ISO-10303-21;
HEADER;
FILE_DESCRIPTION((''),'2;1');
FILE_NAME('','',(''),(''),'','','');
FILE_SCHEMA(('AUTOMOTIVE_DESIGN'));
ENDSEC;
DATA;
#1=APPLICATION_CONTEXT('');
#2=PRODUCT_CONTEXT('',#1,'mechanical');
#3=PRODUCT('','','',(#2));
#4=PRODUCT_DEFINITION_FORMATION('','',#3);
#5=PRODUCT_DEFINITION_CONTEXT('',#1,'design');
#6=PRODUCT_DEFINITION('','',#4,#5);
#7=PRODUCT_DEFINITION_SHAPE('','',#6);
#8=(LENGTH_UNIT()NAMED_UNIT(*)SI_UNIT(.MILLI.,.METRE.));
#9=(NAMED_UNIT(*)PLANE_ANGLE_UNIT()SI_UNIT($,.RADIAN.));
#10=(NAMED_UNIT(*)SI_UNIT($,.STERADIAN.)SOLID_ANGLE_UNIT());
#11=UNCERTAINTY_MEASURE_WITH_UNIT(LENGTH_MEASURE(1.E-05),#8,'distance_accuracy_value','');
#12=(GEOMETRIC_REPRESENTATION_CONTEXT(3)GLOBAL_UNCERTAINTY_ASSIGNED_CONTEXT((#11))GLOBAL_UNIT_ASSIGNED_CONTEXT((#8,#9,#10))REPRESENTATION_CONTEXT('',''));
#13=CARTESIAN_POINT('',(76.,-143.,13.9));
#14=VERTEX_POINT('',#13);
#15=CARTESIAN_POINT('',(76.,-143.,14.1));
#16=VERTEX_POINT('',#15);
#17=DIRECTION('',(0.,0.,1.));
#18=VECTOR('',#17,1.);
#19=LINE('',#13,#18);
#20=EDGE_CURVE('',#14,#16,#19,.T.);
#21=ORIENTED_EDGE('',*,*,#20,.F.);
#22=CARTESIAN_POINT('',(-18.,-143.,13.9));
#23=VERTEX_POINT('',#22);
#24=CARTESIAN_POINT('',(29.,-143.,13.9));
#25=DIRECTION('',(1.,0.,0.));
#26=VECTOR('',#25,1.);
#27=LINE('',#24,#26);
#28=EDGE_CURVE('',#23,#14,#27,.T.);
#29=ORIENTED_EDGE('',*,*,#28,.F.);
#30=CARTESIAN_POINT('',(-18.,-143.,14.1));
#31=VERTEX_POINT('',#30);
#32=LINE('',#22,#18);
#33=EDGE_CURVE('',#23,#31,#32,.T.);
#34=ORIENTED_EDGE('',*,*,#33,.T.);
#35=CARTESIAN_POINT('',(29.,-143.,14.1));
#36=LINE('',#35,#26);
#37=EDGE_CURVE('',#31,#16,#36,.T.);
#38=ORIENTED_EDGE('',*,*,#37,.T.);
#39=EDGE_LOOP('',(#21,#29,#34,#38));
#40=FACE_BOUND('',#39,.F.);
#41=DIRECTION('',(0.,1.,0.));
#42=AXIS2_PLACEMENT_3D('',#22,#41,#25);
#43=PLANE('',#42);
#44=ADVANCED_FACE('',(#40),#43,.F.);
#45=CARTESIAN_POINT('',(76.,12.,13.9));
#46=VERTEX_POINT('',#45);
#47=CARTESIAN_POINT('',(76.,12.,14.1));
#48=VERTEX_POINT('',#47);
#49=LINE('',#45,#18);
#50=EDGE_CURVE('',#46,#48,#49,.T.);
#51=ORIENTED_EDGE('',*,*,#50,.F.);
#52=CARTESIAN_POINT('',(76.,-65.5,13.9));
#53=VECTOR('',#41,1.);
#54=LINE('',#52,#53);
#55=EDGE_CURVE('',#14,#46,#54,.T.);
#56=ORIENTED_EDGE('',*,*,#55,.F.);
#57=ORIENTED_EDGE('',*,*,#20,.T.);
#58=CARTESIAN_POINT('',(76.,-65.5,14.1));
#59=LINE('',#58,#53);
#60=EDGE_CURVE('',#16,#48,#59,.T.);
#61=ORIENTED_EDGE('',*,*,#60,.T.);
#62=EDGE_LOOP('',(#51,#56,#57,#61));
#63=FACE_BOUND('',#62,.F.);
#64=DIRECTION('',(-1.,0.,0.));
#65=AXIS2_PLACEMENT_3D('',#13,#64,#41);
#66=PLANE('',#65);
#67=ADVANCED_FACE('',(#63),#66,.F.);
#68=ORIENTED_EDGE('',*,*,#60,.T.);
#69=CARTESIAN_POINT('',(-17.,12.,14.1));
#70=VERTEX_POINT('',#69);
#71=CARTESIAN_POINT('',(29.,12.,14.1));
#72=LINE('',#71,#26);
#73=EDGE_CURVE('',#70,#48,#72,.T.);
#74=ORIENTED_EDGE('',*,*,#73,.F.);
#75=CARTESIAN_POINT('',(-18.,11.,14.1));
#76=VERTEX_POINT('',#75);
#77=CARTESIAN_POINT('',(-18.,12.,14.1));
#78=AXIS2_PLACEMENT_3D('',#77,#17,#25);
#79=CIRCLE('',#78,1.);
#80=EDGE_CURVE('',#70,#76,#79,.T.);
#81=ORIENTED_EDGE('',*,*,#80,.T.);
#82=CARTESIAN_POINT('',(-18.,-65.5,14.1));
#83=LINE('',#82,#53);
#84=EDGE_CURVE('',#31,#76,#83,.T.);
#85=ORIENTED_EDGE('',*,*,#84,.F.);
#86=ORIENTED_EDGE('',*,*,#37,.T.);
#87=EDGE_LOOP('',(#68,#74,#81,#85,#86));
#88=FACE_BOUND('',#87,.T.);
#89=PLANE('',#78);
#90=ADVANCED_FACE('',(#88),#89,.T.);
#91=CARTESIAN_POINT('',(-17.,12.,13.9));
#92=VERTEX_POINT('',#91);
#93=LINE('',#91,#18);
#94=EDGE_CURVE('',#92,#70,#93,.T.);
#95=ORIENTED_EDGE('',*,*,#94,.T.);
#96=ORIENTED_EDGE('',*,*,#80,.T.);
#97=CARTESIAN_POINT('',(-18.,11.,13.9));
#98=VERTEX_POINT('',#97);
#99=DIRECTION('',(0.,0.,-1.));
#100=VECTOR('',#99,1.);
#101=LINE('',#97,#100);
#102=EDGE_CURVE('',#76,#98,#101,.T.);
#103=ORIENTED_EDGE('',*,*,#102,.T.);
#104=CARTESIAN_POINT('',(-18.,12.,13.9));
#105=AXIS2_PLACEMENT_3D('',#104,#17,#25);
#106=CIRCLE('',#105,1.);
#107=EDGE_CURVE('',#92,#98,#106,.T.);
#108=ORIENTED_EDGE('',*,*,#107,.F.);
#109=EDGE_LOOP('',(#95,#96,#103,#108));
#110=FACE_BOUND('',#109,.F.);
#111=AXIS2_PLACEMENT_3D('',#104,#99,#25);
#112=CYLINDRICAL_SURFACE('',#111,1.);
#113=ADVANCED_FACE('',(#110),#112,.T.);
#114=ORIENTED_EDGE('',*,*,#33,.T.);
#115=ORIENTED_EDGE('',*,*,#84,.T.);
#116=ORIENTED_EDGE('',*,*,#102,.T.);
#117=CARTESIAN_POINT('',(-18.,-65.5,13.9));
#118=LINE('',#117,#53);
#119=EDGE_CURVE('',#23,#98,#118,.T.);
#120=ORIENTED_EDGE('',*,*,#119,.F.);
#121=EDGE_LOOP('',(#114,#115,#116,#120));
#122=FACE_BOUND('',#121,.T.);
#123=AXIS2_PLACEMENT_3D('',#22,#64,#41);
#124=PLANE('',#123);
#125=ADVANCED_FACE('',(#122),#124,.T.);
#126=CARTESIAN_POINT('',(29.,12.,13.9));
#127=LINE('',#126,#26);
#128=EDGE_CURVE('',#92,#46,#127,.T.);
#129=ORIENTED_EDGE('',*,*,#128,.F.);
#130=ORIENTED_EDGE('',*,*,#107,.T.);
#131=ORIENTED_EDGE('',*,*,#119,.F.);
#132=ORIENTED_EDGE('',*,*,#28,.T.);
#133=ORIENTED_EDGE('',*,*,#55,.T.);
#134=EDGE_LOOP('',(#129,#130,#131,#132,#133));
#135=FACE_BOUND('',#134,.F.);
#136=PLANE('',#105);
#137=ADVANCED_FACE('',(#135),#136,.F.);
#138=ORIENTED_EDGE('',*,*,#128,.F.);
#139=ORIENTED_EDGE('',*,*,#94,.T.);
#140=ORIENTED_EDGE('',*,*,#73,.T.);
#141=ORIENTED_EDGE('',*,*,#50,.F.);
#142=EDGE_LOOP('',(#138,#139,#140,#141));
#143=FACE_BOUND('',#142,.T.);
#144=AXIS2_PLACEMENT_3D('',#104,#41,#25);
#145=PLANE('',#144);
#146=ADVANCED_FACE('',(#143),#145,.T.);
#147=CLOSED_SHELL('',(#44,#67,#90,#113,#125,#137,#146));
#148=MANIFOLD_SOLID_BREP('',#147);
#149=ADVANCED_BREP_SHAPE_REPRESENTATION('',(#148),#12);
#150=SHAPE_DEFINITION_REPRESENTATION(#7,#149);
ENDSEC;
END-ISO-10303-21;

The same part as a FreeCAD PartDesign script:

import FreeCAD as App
import Part
import Sketcher
from FreeCAD import Vector


def add_polygon(sketch, points):
    """Adds a closed chain of lines whose ends are joined by coincident constraints."""
    first, n = sketch.GeometryCount, len(points)
    for a, b in zip(points, points[1:] + points[:1]):
        sketch.addGeometry(Part.LineSegment(App.Vector(*a, 0), App.Vector(*b, 0)), False)
    for i in range(n):
        sketch.addConstraint(Sketcher.Constraint("Coincident", first + i, 2, first + (i + 1) % n, 1))

doc = App.newDocument("Part")
body = doc.addObject("PartDesign::Body", "Body")

# Sketch on XY plane
sketch1 = doc.addObject("Sketcher::SketchObject", "Sketch")
body.addObject(sketch1)
sketch1.AttachmentSupport = (doc.XY_Plane, [""])
sketch1.MapMode = "FlatFace"
sketch1.AttachmentOffset = App.Placement(Vector(0, 0, 13.9), App.Rotation())
sketch1.addGeometry(Part.Circle(Vector(-18, 12, 0), Vector(0, 0, 1), 1), False)
sketch1.addConstraint([
    Sketcher.Constraint("Diameter", 0, 2.0),
    Sketcher.Constraint("DistanceX", 0, 3, -1, 1, 18.0),
    Sketcher.Constraint("DistanceY", -1, 1, 0, 3, 12.0),
])
pad1 = doc.addObject("PartDesign::Pad", "Pad")
body.addObject(pad1)
pad1.Profile = sketch1
pad1.Length = 0.2
body2 = doc.addObject("PartDesign::Body", "Body001")

# Sketch on XY plane
sketch2 = doc.addObject("Sketcher::SketchObject", "Sketch001")
body2.addObject(sketch2)
sketch2.AttachmentSupport = (doc.getObject("XY_Plane001"), [""])
sketch2.MapMode = "FlatFace"
sketch2.AttachmentOffset = App.Placement(Vector(0, 0, 13.9), App.Rotation())
add_polygon(sketch2, [(-18, 12), (-18, -143), (76, -143), (76, 12)])  # lines 0-3
sketch2.addConstraint([
    Sketcher.Constraint("Vertical", 0),
    Sketcher.Constraint("Horizontal", 1),
    Sketcher.Constraint("Vertical", 2),
    Sketcher.Constraint("Horizontal", 3),
    Sketcher.Constraint("DistanceX", 1, 1, 1, 2, 94.0),
    Sketcher.Constraint("DistanceY", 0, 2, 0, 1, 155.0),
    Sketcher.Constraint("DistanceX", 0, 2, -1, 1, 18.0),
    Sketcher.Constraint("DistanceY", 0, 2, -1, 1, 143.0),
])
pad2 = doc.addObject("PartDesign::Pad", "Pad001")
body2.addObject(pad2)
pad2.Profile = sketch2
pad2.Length = 0.2
doc.recompute()

boolean = doc.addObject("PartDesign::Boolean", "Boolean")
body2.addObject(boolean)
boolean.Type = "Fuse"
boolean.addObjects([body])

doc.recompute()
